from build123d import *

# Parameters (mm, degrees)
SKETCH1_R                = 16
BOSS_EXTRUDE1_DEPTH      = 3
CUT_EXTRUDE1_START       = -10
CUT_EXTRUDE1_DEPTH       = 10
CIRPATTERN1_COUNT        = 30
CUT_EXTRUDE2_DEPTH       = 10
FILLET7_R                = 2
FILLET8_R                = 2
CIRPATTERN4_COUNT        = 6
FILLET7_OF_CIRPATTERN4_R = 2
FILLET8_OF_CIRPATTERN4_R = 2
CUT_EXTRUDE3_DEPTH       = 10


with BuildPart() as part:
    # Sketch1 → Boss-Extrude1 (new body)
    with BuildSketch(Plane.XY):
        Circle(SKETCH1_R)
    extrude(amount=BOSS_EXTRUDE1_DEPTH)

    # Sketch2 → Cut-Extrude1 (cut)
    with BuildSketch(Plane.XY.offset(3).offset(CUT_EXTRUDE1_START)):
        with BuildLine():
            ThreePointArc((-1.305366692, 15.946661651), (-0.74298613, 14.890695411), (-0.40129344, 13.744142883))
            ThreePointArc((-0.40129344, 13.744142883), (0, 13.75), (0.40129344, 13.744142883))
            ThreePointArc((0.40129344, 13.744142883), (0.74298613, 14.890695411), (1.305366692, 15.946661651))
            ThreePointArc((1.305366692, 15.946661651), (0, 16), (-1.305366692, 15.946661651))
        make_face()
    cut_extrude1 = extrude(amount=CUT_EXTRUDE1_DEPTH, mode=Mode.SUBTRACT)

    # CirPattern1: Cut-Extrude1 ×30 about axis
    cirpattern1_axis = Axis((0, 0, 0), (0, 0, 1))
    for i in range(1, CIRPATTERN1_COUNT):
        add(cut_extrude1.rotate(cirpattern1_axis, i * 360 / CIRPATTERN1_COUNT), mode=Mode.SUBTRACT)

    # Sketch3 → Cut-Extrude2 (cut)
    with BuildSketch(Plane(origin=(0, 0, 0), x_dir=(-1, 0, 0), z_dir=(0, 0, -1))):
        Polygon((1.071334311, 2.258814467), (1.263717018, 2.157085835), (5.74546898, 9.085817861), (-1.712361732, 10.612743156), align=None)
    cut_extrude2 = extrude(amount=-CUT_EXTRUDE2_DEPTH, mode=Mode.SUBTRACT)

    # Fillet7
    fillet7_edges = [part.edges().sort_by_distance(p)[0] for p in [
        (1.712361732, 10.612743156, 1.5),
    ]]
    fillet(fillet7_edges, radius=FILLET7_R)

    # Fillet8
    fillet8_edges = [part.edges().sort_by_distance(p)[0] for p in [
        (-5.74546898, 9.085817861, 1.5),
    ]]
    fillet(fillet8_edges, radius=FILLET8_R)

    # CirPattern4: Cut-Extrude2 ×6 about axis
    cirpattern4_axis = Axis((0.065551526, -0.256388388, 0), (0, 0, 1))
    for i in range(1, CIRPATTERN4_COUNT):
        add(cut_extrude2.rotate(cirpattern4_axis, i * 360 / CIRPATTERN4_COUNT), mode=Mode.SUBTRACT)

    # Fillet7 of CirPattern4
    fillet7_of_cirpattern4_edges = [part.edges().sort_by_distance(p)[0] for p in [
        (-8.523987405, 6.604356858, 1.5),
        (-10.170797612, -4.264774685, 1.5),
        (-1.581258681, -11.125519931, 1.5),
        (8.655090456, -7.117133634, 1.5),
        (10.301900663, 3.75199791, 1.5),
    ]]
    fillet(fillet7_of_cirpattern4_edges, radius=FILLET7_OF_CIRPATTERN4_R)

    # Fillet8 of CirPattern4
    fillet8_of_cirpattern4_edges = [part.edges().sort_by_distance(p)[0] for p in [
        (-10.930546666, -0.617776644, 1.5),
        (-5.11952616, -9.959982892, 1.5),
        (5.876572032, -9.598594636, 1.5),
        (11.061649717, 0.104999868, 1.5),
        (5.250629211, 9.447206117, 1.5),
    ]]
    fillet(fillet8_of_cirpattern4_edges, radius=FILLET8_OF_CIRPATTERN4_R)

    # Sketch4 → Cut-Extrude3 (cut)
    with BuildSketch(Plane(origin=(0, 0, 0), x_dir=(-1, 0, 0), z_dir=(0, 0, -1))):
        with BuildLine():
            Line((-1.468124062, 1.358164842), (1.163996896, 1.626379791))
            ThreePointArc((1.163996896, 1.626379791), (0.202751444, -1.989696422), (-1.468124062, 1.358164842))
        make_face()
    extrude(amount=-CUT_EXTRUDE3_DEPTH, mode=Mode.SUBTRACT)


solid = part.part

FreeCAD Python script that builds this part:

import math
import FreeCAD as App
import Part
import Sketcher

V = App.Vector
Q = App.Units.Quantity


def edges_at(feature, points):
    """Names of the edges that pass closest to the given points."""
    edges = feature.Shape.Edges
    near = lambda p: min(range(len(edges)), key=lambda i: edges[i].distToShape(Part.Vertex(*p))[0])
    return sorted({f"Edge{near(p) + 1}" for p in points})

doc = App.newDocument("Part")
body = doc.addObject("PartDesign::Body", "Body")

# Sketch on XY plane
sketch1 = body.newObject("Sketcher::SketchObject", "Sketch")
sketch1.AttachmentSupport = (doc.getObject("XY_Plane"), [""])
sketch1.MapMode = "FlatFace"
sketch1.addGeometry(Part.Circle(V(0, 0, 0), V(0, 0, 1), 16), False)
sketch1.addConstraint([
    Sketcher.Constraint("Coincident", 0, 3, -1, 1),
    Sketcher.Constraint("Diameter", 0, Q("32 mm")),
])
pad1 = body.newObject("PartDesign::Pad", "Pad")
pad1.Profile = sketch1
pad1.Length = 3

# Sketch on XY plane
sketch2 = body.newObject("Sketcher::SketchObject", "Sketch001")
sketch2.AttachmentSupport = (doc.getObject("XY_Plane"), [""])
sketch2.MapMode = "FlatFace"
sketch2.AttachmentOffset = App.Placement(V(0, 0, -7), App.Rotation())
sketch2.addGeometry([
    Part.ArcOfCircle(Part.Circle(V(-6.3, 12.6, 0), V(0, 0, 1), 6), math.radians(11), math.radians(34)),
    Part.ArcOfCircle(Part.Circle(V(0, 0, 0), V(0, 0, 1), 13.8), math.radians(88.33), math.radians(91.67)),
    Part.ArcOfCircle(Part.Circle(V(6.3, 12.6, 0), V(0, 0, 1), 6), math.radians(146), math.radians(169)),
    Part.ArcOfCircle(Part.Circle(V(0, 0, 0), V(0, 0, 1), 16), math.radians(85.32), math.radians(94.68)),
], False)
sketch2.addConstraint([
    Sketcher.Constraint("Coincident", 0, 1, 1, 2),
    Sketcher.Constraint("Coincident", 1, 1, 2, 2),
    Sketcher.Constraint("Coincident", 2, 1, 3, 1),
    Sketcher.Constraint("Coincident", 3, 2, 0, 2),
    Sketcher.Constraint("Coincident", 1, 3, -1, 1),
    Sketcher.Constraint("Coincident", 3, 3, -1, 1),
    Sketcher.Constraint("Equal", 0, 2),
    Sketcher.Constraint("Symmetric", 0, 3, 2, 3, -2),
    Sketcher.Constraint("Radius", 0, Q("6 mm")),
    Sketcher.Constraint("Radius", 3, Q("16 mm")),
    Sketcher.Constraint("Radius", 1, Q("13.750001 mm")),
    Sketcher.Constraint("DistanceY", -1, 1, 0, 3, Q("12.612331 mm")),
    Sketcher.Constraint("DistanceY", -1, 1, 2, 1, Q("15.946662 mm")),
])
pocket1 = body.newObject("PartDesign::Pocket", "Pocket")
pocket1.Profile = sketch2
pocket1.Length = 10
pocket1.Reversed = True
doc.recompute()

polarpattern = body.newObject("PartDesign::PolarPattern", "PolarPattern")
polarpattern.Originals = [pocket1]
polarpattern.Axis = (doc.getObject("Z_Axis"), [""])
polarpattern.Angle = 360
polarpattern.Occurrences = 30
body.Tip = polarpattern

# Sketch on XY plane
sketch3 = body.newObject("Sketcher::SketchObject", "Sketch002")
sketch3.AttachmentSupport = (doc.getObject("XY_Plane"), [""])
sketch3.MapMode = "FlatFace"
sketch3.addGeometry([
    Part.LineSegment(V(-1.07, 2.26, 0), V(-1.26, 2.16, 0)),
    Part.LineSegment(V(-1.26, 2.16, 0), V(-5.75, 9.09, 0)),
    Part.LineSegment(V(-5.75, 9.09, 0), V(1.71, 10.61, 0)),
    Part.LineSegment(V(1.71, 10.61, 0), V(-1.07, 2.26, 0)),
], False)
sketch3.addConstraint([
    Sketcher.Constraint("Coincident", 0, 2, 1, 1),
    Sketcher.Constraint("Coincident", 1, 2, 2, 1),
    Sketcher.Constraint("Coincident", 2, 2, 3, 1),
    Sketcher.Constraint("Coincident", 3, 2, 0, 1),
    Sketcher.Constraint("Distance", 2, Q("7.612538 mm")),
    Sketcher.Constraint("DistanceX", 1, 2, -1, 1, Q("5.745469 mm")),
    Sketcher.Constraint("DistanceX", -1, 1, 2, 2, Q("1.712362 mm")),
    Sketcher.Constraint("DistanceX", 1, 2, 0, 2, Q("4.481752 mm")),
    Sketcher.Constraint("DistanceY", 0, 2, 3, 2, Q("0.101729 mm")),
    Sketcher.Constraint("DistanceY", 3, 2, 2, 2, Q("8.353929 mm")),
    Sketcher.Constraint("Distance", 0, Q("0.217623 mm")),
    Sketcher.Constraint("DistanceY", -1, 1, 0, 2, Q("2.157086 mm")),
])
pocket2 = body.newObject("PartDesign::Pocket", "Pocket001")
pocket2.Profile = sketch3
pocket2.Length = 10
pocket2.Reversed = True
doc.recompute()

fillet = body.newObject("PartDesign::Fillet", "Fillet")
fillet.Base = (pocket2, edges_at(pocket2, [(1.712, 10.613, 1.5)]))
fillet.Radius = 2
doc.recompute()

fillet2 = body.newObject("PartDesign::Fillet", "Fillet001")
fillet2.Base = (fillet, edges_at(fillet, [(-5.745, 9.086, 1.5)]))
fillet2.Radius = 2
doc.recompute()

datumline = body.newObject("PartDesign::Line", "DatumLine")
datumline.Placement = App.Placement(V(0.065552, -0.256388, 0), App.Rotation(V(0, 0, 1), V(0, 0, 1)))
polarpattern2 = body.newObject("PartDesign::PolarPattern", "PolarPattern001")
polarpattern2.Originals = [pocket2]
polarpattern2.Axis = (datumline, [""])
polarpattern2.Angle = 360
polarpattern2.Occurrences = 6
body.Tip = polarpattern2
doc.recompute()

fillet3 = body.newObject("PartDesign::Fillet", "Fillet002")
fillet3.Base = (polarpattern2, edges_at(polarpattern2, [
    (-8.524, 6.604, 1.5),
    (-10.171, -4.265, 1.5),
    (-1.581, -11.126, 1.5),
    (8.655, -7.117, 1.5),
    (10.302, 3.752, 1.5),
]))
fillet3.Radius = 2
doc.recompute()

fillet4 = body.newObject("PartDesign::Fillet", "Fillet003")
fillet4.Base = (fillet3, edges_at(fillet3, [
    (-10.931, -0.618, 1.5),
    (-5.12, -9.96, 1.5),
    (5.877, -9.599, 1.5),
    (11.062, 0.105, 1.5),
    (5.251, 9.447, 1.5),
]))
fillet4.Radius = 2

# Sketch on XY plane
sketch4 = body.newObject("Sketcher::SketchObject", "Sketch003")
sketch4.AttachmentSupport = (doc.getObject("XY_Plane"), [""])
sketch4.MapMode = "FlatFace"
sketch4.addGeometry([
    Part.LineSegment(V(-1.2, 1.6, 0), V(1.5, 1.4, 0)),
    Part.ArcOfCircle(Part.Circle(V(0, 0, 0), V(0, 0, 1), 2), math.radians(126), math.radians(403)),
], False)
sketch4.addConstraint([
    Sketcher.Constraint("Coincident", 0, 1, 1, 1),
    Sketcher.Constraint("Coincident", 1, 2, 0, 2),
    Sketcher.Constraint("Coincident", 1, 3, -1, 1),
    Sketcher.Constraint("Radius", 1, Q("2 mm")),
    Sketcher.Constraint("Distance", 0, Q("2.645751 mm")),
    Sketcher.Constraint("DistanceY", -1, 1, 0, 1, Q("1.62638 mm")),
])
pocket3 = body.newObject("PartDesign::Pocket", "Pocket002")
pocket3.Profile = sketch4
pocket3.Length = 10
pocket3.Reversed = True

doc.recompute()
